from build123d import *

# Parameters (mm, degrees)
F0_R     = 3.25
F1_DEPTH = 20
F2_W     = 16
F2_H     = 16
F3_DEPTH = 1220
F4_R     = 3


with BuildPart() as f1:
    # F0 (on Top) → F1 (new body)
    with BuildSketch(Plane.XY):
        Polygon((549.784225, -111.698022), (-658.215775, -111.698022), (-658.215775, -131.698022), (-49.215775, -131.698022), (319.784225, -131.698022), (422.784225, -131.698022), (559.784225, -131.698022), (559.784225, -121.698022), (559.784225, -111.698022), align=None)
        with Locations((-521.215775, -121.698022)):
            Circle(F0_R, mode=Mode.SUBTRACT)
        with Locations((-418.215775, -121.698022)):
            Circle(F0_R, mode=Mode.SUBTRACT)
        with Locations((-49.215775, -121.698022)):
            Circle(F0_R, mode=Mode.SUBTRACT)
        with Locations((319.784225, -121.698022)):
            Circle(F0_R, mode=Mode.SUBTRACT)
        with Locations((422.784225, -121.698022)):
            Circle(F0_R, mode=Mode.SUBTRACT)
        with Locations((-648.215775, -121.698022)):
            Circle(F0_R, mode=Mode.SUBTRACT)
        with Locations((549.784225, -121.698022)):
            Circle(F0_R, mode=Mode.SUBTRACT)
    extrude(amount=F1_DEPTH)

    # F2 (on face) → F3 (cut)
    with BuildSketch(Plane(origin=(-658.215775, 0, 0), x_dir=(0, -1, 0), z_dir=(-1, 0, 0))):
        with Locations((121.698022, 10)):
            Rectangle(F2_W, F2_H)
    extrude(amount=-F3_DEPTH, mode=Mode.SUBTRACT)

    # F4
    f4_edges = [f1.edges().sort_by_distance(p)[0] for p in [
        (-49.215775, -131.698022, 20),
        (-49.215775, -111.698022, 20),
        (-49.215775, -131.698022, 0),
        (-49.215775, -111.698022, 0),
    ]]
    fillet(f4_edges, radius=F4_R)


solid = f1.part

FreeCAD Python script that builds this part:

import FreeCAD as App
import Part
import Sketcher
from FreeCAD import Vector
Q = App.Units.Quantity


def edges_at(feature, points):
    """Names of the edges that pass closest to the given points."""
    edges = feature.Shape.Edges
    near = lambda p: min(range(len(edges)), key=lambda i: edges[i].distToShape(Part.Vertex(*p))[0])
    return sorted({f"Edge{near(p) + 1}" for p in points})

doc = App.newDocument("Part")
params = doc.addObject("Spreadsheet::Sheet", "Params")
for row, (alias, value) in enumerate([
    ("sketch1_diameter", "6.5 mm"),
    ("sketch1_width", "1218 mm"),
    ("sketch1_height", "20 mm"),
    ("pad1_length", "20 mm"),
    ("sketch2_width", "16 mm"),
    ("pocket1_length", "1220 mm"),
    ("fillet_radius", "3 mm"),
], start=1):
    params.set(f"A{row}", alias)
    params.set(f"B{row}", "=" + value)
    params.setAlias(f"B{row}", alias)

body = doc.addObject("PartDesign::Body", "Body")

# Sketch on XY plane
sketch1 = body.newObject("Sketcher::SketchObject", "Sketch")
sketch1.AttachmentSupport = (doc.getObject("XY_Plane"), [""])
sketch1.MapMode = "FlatFace"
sketch1.addGeometry([
    Part.LineSegment(Vector(-658.2, -111.7, 0), Vector(-658.2, -131.7, 0)),  # 0
    Part.LineSegment(Vector(-658.2, -131.7, 0), Vector(559.8, -131.7, 0)),  # 1
    Part.LineSegment(Vector(559.8, -131.7, 0), Vector(559.8, -111.7, 0)),  # 2
    Part.LineSegment(Vector(559.8, -111.7, 0), Vector(-658.2, -111.7, 0)),  # 3
    Part.Circle(Vector(-648.2, -121.7, 0), Vector(0, 0, 1), 3.2),  # 4
    Part.Circle(Vector(-521.2, -121.7, 0), Vector(0, 0, 1), 3.2),  # 5
    Part.Circle(Vector(-418.2, -121.7, 0), Vector(0, 0, 1), 3.2),  # 6
    Part.Circle(Vector(-49.2, -121.7, 0), Vector(0, 0, 1), 3.2),  # 7
    Part.Circle(Vector(319.8, -121.7, 0), Vector(0, 0, 1), 3.2),  # 8
    Part.Circle(Vector(422.8, -121.7, 0), Vector(0, 0, 1), 3.2),  # 9
    Part.Circle(Vector(549.8, -121.7, 0), Vector(0, 0, 1), 3.2),  # 10
], False)
sketch1.addConstraint([
    Sketcher.Constraint("Coincident", 0, 2, 1, 1),
    Sketcher.Constraint("Coincident", 1, 2, 2, 1),
    Sketcher.Constraint("Coincident", 2, 2, 3, 1),
    Sketcher.Constraint("Coincident", 3, 2, 0, 1),
    Sketcher.Constraint("Vertical", 0),
    Sketcher.Constraint("Horizontal", 1),
    Sketcher.Constraint("Vertical", 2),
    Sketcher.Constraint("Horizontal", 3),
    Sketcher.Constraint("Equal", 4, 5),
    Sketcher.Constraint("Equal", 5, 6),
    Sketcher.Constraint("Equal", 6, 7),
    Sketcher.Constraint("Equal", 7, 8),
    Sketcher.Constraint("Equal", 8, 9),
    Sketcher.Constraint("Equal", 9, 10),
    Sketcher.Constraint("Horizontal", 4, 3, 5, 3),
    Sketcher.Constraint("Horizontal", 5, 3, 6, 3),
    Sketcher.Constraint("Horizontal", 6, 3, 7, 3),
    Sketcher.Constraint("Horizontal", 7, 3, 8, 3),
    Sketcher.Constraint("Horizontal", 8, 3, 9, 3),
    Sketcher.Constraint("Horizontal", 9, 3, 10, 3),
    Sketcher.Constraint("Diameter", 4, Q("6.5 mm")),
    Sketcher.Constraint("DistanceX", 1, 1, 1, 2, Q("1218 mm")),
    Sketcher.Constraint("DistanceY", 0, 2, 0, 1, Q("20 mm")),
    Sketcher.Constraint("DistanceX", 4, 3, 5, 3, Q("127 mm")),
    Sketcher.Constraint("DistanceX", 5, 3, 6, 3, Q("103 mm")),
    Sketcher.Constraint("DistanceX", 6, 3, 7, 3, Q("369 mm")),
    Sketcher.Constraint("DistanceX", 7, 3, 8, 3, Q("369 mm")),
    Sketcher.Constraint("DistanceX", 8, 3, 9, 3, Q("103 mm")),
    Sketcher.Constraint("DistanceX", 9, 3, 10, 3, Q("127 mm")),
    Sketcher.Constraint("DistanceX", 0, 2, 4, 3, Q("10 mm")),
    Sketcher.Constraint("DistanceY", 0, 2, 4, 3, Q("10 mm")),
    Sketcher.Constraint("DistanceY", 4, 3, -1, 1, Q("121.698022 mm")),
    Sketcher.Constraint("DistanceX", 4, 3, -1, 1, Q("648.215775 mm")),
])
sketch1.setExpression("Constraints[20]", "Params.sketch1_diameter")
sketch1.setExpression("Constraints[21]", "Params.sketch1_width")
sketch1.setExpression("Constraints[22]", "Params.sketch1_height")
pad1 = body.newObject("PartDesign::Pad", "Pad")
pad1.Profile = sketch1
pad1.setExpression("Length", "Params.pad1_length")

# Sketch on YZ plane
sketch2 = body.newObject("Sketcher::SketchObject", "Sketch001")
sketch2.AttachmentSupport = (doc.getObject("YZ_Plane"), [""])
sketch2.MapMode = "FlatFace"
sketch2.AttachmentOffset = App.Placement(Vector(0, 0, -658.215775), App.Rotation())
sketch2.addGeometry([
    Part.LineSegment(Vector(-114, 18, 0), Vector(-114, 2, 0)),
    Part.LineSegment(Vector(-114, 2, 0), Vector(-130, 2, 0)),
    Part.LineSegment(Vector(-130, 2, 0), Vector(-130, 18, 0)),
    Part.LineSegment(Vector(-130, 18, 0), Vector(-114, 18, 0)),
], False)
sketch2.addConstraint([
    Sketcher.Constraint("Coincident", 0, 2, 1, 1),
    Sketcher.Constraint("Coincident", 1, 2, 2, 1),
    Sketcher.Constraint("Coincident", 2, 2, 3, 1),
    Sketcher.Constraint("Coincident", 3, 2, 0, 1),
    Sketcher.Constraint("Vertical", 0),
    Sketcher.Constraint("Horizontal", 1),
    Sketcher.Constraint("Vertical", 2),
    Sketcher.Constraint("Horizontal", 3),
    Sketcher.Constraint("Equal", 3, 0),
    Sketcher.Constraint("DistanceX", 1, 2, 1, 1, Q("16 mm")),
    Sketcher.Constraint("DistanceY", -1, 1, 0, 2, Q("2 mm")),
    Sketcher.Constraint("DistanceX", 0, 2, -1, 1, Q("113.698022 mm")),
])
sketch2.setExpression("Constraints[9]", "Params.sketch2_width")
pocket1 = body.newObject("PartDesign::Pocket", "Pocket")
pocket1.Profile = sketch2
pocket1.setExpression("Length", "Params.pocket1_length")
pocket1.Reversed = True
doc.recompute()

fillet = body.newObject("PartDesign::Fillet", "Fillet")
fillet.Base = (pocket1, edges_at(pocket1, [
    (-49.216, -131.698, 20),
    (-49.216, -111.698, 20),
    (-49.216, -131.698, 0),
    (-49.216, -111.698, 0),
]))
fillet.setExpression("Radius", "Params.fillet_radius")

doc.recompute()
